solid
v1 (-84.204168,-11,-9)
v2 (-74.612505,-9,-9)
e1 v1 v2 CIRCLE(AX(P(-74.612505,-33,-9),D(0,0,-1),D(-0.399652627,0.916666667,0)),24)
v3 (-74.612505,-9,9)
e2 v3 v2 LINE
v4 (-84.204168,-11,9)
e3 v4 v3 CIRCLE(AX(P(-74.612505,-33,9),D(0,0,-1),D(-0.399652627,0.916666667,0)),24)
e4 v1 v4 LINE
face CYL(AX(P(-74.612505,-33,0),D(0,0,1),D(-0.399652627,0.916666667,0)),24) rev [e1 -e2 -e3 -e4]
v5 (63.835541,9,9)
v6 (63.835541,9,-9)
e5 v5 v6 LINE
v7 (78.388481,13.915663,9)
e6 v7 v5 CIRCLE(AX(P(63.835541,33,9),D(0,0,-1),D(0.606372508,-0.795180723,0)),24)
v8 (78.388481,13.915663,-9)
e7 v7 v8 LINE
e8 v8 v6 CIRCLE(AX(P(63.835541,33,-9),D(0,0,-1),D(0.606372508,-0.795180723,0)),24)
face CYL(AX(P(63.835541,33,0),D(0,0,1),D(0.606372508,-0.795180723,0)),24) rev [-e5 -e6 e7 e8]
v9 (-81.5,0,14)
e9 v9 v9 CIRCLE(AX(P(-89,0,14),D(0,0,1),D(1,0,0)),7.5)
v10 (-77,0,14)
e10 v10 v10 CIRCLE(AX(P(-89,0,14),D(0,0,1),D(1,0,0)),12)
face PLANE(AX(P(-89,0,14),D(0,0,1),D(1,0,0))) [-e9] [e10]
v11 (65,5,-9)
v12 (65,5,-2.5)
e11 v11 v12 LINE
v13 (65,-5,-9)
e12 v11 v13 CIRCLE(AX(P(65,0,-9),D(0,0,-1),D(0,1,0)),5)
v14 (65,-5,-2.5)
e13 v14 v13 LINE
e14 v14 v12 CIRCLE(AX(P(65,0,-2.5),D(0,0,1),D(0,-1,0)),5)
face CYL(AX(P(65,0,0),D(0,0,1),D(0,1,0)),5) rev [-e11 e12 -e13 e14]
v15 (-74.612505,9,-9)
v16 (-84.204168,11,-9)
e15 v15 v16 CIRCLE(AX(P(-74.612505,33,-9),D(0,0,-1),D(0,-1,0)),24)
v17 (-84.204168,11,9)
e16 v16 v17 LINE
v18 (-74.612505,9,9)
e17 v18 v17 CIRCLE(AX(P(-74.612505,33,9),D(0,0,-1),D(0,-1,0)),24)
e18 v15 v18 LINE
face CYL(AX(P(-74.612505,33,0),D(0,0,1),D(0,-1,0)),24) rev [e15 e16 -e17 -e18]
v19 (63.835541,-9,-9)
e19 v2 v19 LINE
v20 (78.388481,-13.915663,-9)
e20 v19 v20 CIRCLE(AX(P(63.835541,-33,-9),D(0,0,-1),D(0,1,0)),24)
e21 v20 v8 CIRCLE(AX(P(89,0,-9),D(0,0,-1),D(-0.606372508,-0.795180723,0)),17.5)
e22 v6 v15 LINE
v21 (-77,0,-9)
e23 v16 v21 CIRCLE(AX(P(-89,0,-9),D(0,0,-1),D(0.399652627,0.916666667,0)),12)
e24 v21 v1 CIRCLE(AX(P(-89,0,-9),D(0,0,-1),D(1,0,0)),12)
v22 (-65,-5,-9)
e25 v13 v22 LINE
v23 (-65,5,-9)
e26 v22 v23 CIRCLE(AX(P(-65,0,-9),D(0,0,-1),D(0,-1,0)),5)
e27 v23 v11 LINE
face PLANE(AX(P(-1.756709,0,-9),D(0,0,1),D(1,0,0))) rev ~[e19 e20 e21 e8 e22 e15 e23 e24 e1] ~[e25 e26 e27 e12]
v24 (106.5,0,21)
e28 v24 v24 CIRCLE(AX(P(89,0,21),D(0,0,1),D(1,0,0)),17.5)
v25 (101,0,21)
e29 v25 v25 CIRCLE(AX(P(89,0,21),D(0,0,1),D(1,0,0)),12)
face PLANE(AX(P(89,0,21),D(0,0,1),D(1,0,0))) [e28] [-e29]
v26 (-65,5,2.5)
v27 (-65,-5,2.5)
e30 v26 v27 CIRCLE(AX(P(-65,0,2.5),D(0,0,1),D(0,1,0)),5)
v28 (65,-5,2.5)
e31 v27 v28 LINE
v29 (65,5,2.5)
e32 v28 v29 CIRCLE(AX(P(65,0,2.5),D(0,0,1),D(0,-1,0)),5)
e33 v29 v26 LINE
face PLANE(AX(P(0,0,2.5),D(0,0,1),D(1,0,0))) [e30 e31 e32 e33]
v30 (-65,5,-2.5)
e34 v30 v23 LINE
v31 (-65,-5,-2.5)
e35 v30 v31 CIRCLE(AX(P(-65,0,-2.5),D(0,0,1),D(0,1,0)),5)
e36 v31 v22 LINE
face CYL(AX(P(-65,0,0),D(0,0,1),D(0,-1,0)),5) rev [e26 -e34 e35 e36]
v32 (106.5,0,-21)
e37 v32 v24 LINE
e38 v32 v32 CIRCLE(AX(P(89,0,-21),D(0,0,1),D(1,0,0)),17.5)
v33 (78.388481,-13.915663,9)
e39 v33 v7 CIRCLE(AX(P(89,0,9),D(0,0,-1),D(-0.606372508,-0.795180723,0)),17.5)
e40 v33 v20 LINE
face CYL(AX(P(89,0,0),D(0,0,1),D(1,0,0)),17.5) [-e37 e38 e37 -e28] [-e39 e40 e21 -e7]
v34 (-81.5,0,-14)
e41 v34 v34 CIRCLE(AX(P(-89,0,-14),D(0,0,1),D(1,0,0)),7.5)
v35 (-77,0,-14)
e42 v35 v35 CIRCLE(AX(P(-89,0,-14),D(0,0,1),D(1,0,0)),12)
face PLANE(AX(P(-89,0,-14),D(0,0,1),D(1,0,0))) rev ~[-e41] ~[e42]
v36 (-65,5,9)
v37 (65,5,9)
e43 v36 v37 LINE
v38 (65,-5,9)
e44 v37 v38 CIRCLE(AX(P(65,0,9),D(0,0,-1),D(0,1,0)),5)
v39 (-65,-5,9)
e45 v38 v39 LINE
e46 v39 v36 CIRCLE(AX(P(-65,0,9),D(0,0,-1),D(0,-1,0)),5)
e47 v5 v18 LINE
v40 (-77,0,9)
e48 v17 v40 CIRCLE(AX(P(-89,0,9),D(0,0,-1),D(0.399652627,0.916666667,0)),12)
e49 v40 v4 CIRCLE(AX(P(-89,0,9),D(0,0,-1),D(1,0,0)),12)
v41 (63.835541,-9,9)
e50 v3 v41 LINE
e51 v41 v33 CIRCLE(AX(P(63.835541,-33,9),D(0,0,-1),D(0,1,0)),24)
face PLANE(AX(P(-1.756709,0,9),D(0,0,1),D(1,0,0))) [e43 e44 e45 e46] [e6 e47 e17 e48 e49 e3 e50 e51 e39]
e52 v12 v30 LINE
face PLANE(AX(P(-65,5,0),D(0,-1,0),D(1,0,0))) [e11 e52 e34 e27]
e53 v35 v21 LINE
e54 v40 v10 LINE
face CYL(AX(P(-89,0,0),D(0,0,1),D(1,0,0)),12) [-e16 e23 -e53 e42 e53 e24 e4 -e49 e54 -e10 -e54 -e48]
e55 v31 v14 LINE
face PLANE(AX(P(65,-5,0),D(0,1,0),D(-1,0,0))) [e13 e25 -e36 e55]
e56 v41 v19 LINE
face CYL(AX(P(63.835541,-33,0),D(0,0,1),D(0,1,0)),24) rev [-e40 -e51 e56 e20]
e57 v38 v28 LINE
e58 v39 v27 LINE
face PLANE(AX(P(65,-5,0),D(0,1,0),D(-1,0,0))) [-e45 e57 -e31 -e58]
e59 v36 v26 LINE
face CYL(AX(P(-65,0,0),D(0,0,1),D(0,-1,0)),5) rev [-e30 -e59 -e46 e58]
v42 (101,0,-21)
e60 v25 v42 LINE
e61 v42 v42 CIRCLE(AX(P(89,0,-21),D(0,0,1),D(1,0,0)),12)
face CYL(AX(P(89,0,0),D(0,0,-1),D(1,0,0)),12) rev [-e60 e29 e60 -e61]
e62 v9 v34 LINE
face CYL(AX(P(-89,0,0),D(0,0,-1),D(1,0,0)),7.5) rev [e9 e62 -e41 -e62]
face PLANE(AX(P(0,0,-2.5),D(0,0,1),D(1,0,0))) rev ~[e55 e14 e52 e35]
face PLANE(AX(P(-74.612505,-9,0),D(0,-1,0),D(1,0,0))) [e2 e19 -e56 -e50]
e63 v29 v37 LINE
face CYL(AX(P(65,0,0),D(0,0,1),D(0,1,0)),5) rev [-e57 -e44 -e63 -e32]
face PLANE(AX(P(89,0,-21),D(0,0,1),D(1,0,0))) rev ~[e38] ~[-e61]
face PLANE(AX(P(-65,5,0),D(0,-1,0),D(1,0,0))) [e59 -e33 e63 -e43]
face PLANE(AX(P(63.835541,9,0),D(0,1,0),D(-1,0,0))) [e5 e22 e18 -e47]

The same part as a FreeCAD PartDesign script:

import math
import FreeCAD as App
import Part
import Sketcher
from FreeCAD import Vector

doc = App.newDocument("Part")
body = doc.addObject("PartDesign::Body", "Body")

sketch1 = body.newObject("Sketcher::SketchObject", "Sketch")
sketch1.AttachmentSupport = (doc.getObject("XY_Plane"), [""])
sketch1.MapMode = "FlatFace"
sketch1.addGeometry([
    Part.Circle(Vector(-89, 0, 0), Vector(0, 0, 1), 12),
    Part.Circle(Vector(-89, 0, 0), Vector(0, 0, 1), 8),
], False)
sketch1.addConstraint([
    Sketcher.Constraint("Coincident", 1, 3, 0, 3),
    Sketcher.Constraint("PointOnObject", 0, 3, -1),
    Sketcher.Constraint("Diameter", 0, 24.0),
    Sketcher.Constraint("Diameter", 1, 15.0),
    Sketcher.Constraint("DistanceX", 0, 3, -1, 1, 89.0),
])
pad1 = body.newObject("PartDesign::Pad", "Pad")
pad1.Profile = sketch1
pad1.Length = 28
pad1.Midplane = True
body2 = doc.addObject("PartDesign::Body", "Body001")

sketch2 = body2.newObject("Sketcher::SketchObject", "Sketch001")
sketch2.AttachmentSupport = (doc.getObject("XY_Plane001"), [""])
sketch2.MapMode = "FlatFace"
sketch2.addGeometry([
    Part.Circle(Vector(89, 0, 0), Vector(0, 0, 1), 18),
    Part.Circle(Vector(89, 0, 0), Vector(0, 0, 1), 12),
], False)
sketch2.addConstraint([
    Sketcher.Constraint("Coincident", 1, 3, 0, 3),
    Sketcher.Constraint("PointOnObject", 0, 3, -1),
    Sketcher.Constraint("Diameter", 0, 35.0),
    Sketcher.Constraint("Diameter", 1, 24.0),
    Sketcher.Constraint("DistanceX", -1, 1, 0, 3, 89.0),
])
pad2 = body2.newObject("PartDesign::Pad", "Pad001")
pad2.Profile = sketch2
pad2.Length = 42
pad2.Midplane = True
body.AllowCompound = True
doc.recompute()

boolean = body.newObject("PartDesign::Boolean", "Boolean")
boolean.Type = "Fuse"
boolean.addObjects([body2])

sketch3 = body.newObject("Sketcher::SketchObject", "Sketch002")
sketch3.AttachmentSupport = (doc.getObject("XY_Plane"), [""])
sketch3.MapMode = "FlatFace"
sketch3.addGeometry([
    Part.LineSegment(Vector(64, 9, 0), Vector(-75, 9, 0)),
    Part.ArcOfCircle(Part.Circle(Vector(-75, 33, 0), Vector(0, 0, 1), 24), math.radians(-114), math.radians(-90)),
    Part.ArcOfCircle(Part.Circle(Vector(-89, 0, 0), Vector(0, 0, 1), 12), math.radians(0), math.radians(66)),
    Part.ArcOfCircle(Part.Circle(Vector(-89, 0, 0), Vector(0, 0, 1), 12), math.radians(-66), math.radians(0)),
    Part.ArcOfCircle(Part.Circle(Vector(-75, -33, 0), Vector(0, 0, 1), 24), math.radians(90), math.radians(114)),
    Part.LineSegment(Vector(-75, -9, 0), Vector(64, -9, 0)),
    Part.ArcOfCircle(Part.Circle(Vector(64, -33, 0), Vector(0, 0, 1), 24), math.radians(53), math.radians(90)),
    Part.ArcOfCircle(Part.Circle(Vector(89, 0, 0), Vector(0, 0, 1), 18), math.radians(127), math.radians(233)),
    Part.ArcOfCircle(Part.Circle(Vector(64, 33, 0), Vector(0, 0, 1), 24), math.radians(-90), math.radians(-53)),
    Part.LineSegment(Vector(-65, 5, 0), Vector(65, 5, 0)),
    Part.ArcOfCircle(Part.Circle(Vector(65, 0, 0), Vector(0, 0, 1), 5), math.radians(-90), math.radians(90)),
    Part.LineSegment(Vector(65, -5, 0), Vector(-65, -5, 0)),
    Part.ArcOfCircle(Part.Circle(Vector(-65, 0, 0), Vector(0, 0, 1), 5), math.radians(90), math.radians(270)),
], False)
sketch3.addConstraint([
    Sketcher.Constraint("Tangent", 0, 2, 1, 2),
    Sketcher.Constraint("Tangent", 1, 1, 2, 2),
    Sketcher.Constraint("Tangent", 2, 1, 3, 2),
    Sketcher.Constraint("Tangent", 3, 1, 4, 2),
    Sketcher.Constraint("Tangent", 4, 1, 5, 1),
    Sketcher.Constraint("Tangent", 5, 2, 6, 2),
    Sketcher.Constraint("Tangent", 6, 1, 7, 2),
    Sketcher.Constraint("Tangent", 7, 1, 8, 2),
    Sketcher.Constraint("Tangent", 8, 1, 0, 1),
    Sketcher.Constraint("Tangent", 9, 2, 10, 2),
    Sketcher.Constraint("Tangent", 10, 1, 11, 1),
    Sketcher.Constraint("Tangent", 11, 2, 12, 2),
    Sketcher.Constraint("Tangent", 12, 1, 9, 1),
    Sketcher.Constraint("Horizontal", 0),
    Sketcher.Constraint("Horizontal", 5),
    Sketcher.Constraint("Horizontal", 9),
    Sketcher.Constraint("Horizontal", 11),
    Sketcher.Constraint("Equal", 2, 3),
    Sketcher.Constraint("Equal", 1, 4),
    Sketcher.Constraint("Equal", 4, 6),
    Sketcher.Constraint("Equal", 6, 8),
    Sketcher.Constraint("Symmetric", 2, 3, 7, 3, -1, 1),
    Sketcher.Constraint("Symmetric", 10, 3, 12, 3, -1, 1),
    Sketcher.Constraint("Symmetric", 1, 3, 4, 3, -1),
    Sketcher.Constraint("PointOnObject", 2, 1, -1),
    Sketcher.Constraint("Radius", 1, 24.0),
    Sketcher.Constraint("Radius", 2, 12.0),
    Sketcher.Constraint("Radius", 10, 5.0),
    Sketcher.Constraint("Radius", 7, 17.5),
    Sketcher.Constraint("DistanceX", 9, 1, 9, 2, 130.0),
    Sketcher.Constraint("DistanceY", -1, 1, 1, 3, 33.0),
    Sketcher.Constraint("DistanceX", 2, 3, -1, 1, 89.0),
])
pad3 = body.newObject("PartDesign::Pad", "Pad002")
pad3.Profile = sketch3
pad3.Length = 18
pad3.Midplane = True

sketch4 = body.newObject("Sketcher::SketchObject", "Sketch003")
sketch4.AttachmentSupport = (doc.getObject("XY_Plane"), [""])
sketch4.MapMode = "FlatFace"
sketch4.addGeometry([
    Part.LineSegment(Vector(65, 5, 0), Vector(-65, 5, 0)),
    Part.ArcOfCircle(Part.Circle(Vector(-65, 0, 0), Vector(0, 0, 1), 5), math.radians(90), math.radians(270)),
    Part.LineSegment(Vector(-65, -5, 0), Vector(65, -5, 0)),
    Part.ArcOfCircle(Part.Circle(Vector(65, 0, 0), Vector(0, 0, 1), 5), math.radians(-90), math.radians(90)),
], False)
sketch4.addConstraint([
    Sketcher.Constraint("Tangent", 0, 2, 1, 1),
    Sketcher.Constraint("Tangent", 1, 2, 2, 1),
    Sketcher.Constraint("Tangent", 2, 2, 3, 1),
    Sketcher.Constraint("Tangent", 3, 2, 0, 1),
    Sketcher.Constraint("Horizontal", 0),
    Sketcher.Constraint("Horizontal", 2),
    Sketcher.Constraint("Symmetric", 1, 3, 3, 3, -1, 1),
    Sketcher.Constraint("Radius", 1, 5.0),
    Sketcher.Constraint("DistanceX", 0, 2, 0, 1, 130.0),
])
pad4 = body.newObject("PartDesign::Pad", "Pad003")
pad4.Profile = sketch4
pad4.Length = 5
pad4.Midplane = True

doc.recompute()
